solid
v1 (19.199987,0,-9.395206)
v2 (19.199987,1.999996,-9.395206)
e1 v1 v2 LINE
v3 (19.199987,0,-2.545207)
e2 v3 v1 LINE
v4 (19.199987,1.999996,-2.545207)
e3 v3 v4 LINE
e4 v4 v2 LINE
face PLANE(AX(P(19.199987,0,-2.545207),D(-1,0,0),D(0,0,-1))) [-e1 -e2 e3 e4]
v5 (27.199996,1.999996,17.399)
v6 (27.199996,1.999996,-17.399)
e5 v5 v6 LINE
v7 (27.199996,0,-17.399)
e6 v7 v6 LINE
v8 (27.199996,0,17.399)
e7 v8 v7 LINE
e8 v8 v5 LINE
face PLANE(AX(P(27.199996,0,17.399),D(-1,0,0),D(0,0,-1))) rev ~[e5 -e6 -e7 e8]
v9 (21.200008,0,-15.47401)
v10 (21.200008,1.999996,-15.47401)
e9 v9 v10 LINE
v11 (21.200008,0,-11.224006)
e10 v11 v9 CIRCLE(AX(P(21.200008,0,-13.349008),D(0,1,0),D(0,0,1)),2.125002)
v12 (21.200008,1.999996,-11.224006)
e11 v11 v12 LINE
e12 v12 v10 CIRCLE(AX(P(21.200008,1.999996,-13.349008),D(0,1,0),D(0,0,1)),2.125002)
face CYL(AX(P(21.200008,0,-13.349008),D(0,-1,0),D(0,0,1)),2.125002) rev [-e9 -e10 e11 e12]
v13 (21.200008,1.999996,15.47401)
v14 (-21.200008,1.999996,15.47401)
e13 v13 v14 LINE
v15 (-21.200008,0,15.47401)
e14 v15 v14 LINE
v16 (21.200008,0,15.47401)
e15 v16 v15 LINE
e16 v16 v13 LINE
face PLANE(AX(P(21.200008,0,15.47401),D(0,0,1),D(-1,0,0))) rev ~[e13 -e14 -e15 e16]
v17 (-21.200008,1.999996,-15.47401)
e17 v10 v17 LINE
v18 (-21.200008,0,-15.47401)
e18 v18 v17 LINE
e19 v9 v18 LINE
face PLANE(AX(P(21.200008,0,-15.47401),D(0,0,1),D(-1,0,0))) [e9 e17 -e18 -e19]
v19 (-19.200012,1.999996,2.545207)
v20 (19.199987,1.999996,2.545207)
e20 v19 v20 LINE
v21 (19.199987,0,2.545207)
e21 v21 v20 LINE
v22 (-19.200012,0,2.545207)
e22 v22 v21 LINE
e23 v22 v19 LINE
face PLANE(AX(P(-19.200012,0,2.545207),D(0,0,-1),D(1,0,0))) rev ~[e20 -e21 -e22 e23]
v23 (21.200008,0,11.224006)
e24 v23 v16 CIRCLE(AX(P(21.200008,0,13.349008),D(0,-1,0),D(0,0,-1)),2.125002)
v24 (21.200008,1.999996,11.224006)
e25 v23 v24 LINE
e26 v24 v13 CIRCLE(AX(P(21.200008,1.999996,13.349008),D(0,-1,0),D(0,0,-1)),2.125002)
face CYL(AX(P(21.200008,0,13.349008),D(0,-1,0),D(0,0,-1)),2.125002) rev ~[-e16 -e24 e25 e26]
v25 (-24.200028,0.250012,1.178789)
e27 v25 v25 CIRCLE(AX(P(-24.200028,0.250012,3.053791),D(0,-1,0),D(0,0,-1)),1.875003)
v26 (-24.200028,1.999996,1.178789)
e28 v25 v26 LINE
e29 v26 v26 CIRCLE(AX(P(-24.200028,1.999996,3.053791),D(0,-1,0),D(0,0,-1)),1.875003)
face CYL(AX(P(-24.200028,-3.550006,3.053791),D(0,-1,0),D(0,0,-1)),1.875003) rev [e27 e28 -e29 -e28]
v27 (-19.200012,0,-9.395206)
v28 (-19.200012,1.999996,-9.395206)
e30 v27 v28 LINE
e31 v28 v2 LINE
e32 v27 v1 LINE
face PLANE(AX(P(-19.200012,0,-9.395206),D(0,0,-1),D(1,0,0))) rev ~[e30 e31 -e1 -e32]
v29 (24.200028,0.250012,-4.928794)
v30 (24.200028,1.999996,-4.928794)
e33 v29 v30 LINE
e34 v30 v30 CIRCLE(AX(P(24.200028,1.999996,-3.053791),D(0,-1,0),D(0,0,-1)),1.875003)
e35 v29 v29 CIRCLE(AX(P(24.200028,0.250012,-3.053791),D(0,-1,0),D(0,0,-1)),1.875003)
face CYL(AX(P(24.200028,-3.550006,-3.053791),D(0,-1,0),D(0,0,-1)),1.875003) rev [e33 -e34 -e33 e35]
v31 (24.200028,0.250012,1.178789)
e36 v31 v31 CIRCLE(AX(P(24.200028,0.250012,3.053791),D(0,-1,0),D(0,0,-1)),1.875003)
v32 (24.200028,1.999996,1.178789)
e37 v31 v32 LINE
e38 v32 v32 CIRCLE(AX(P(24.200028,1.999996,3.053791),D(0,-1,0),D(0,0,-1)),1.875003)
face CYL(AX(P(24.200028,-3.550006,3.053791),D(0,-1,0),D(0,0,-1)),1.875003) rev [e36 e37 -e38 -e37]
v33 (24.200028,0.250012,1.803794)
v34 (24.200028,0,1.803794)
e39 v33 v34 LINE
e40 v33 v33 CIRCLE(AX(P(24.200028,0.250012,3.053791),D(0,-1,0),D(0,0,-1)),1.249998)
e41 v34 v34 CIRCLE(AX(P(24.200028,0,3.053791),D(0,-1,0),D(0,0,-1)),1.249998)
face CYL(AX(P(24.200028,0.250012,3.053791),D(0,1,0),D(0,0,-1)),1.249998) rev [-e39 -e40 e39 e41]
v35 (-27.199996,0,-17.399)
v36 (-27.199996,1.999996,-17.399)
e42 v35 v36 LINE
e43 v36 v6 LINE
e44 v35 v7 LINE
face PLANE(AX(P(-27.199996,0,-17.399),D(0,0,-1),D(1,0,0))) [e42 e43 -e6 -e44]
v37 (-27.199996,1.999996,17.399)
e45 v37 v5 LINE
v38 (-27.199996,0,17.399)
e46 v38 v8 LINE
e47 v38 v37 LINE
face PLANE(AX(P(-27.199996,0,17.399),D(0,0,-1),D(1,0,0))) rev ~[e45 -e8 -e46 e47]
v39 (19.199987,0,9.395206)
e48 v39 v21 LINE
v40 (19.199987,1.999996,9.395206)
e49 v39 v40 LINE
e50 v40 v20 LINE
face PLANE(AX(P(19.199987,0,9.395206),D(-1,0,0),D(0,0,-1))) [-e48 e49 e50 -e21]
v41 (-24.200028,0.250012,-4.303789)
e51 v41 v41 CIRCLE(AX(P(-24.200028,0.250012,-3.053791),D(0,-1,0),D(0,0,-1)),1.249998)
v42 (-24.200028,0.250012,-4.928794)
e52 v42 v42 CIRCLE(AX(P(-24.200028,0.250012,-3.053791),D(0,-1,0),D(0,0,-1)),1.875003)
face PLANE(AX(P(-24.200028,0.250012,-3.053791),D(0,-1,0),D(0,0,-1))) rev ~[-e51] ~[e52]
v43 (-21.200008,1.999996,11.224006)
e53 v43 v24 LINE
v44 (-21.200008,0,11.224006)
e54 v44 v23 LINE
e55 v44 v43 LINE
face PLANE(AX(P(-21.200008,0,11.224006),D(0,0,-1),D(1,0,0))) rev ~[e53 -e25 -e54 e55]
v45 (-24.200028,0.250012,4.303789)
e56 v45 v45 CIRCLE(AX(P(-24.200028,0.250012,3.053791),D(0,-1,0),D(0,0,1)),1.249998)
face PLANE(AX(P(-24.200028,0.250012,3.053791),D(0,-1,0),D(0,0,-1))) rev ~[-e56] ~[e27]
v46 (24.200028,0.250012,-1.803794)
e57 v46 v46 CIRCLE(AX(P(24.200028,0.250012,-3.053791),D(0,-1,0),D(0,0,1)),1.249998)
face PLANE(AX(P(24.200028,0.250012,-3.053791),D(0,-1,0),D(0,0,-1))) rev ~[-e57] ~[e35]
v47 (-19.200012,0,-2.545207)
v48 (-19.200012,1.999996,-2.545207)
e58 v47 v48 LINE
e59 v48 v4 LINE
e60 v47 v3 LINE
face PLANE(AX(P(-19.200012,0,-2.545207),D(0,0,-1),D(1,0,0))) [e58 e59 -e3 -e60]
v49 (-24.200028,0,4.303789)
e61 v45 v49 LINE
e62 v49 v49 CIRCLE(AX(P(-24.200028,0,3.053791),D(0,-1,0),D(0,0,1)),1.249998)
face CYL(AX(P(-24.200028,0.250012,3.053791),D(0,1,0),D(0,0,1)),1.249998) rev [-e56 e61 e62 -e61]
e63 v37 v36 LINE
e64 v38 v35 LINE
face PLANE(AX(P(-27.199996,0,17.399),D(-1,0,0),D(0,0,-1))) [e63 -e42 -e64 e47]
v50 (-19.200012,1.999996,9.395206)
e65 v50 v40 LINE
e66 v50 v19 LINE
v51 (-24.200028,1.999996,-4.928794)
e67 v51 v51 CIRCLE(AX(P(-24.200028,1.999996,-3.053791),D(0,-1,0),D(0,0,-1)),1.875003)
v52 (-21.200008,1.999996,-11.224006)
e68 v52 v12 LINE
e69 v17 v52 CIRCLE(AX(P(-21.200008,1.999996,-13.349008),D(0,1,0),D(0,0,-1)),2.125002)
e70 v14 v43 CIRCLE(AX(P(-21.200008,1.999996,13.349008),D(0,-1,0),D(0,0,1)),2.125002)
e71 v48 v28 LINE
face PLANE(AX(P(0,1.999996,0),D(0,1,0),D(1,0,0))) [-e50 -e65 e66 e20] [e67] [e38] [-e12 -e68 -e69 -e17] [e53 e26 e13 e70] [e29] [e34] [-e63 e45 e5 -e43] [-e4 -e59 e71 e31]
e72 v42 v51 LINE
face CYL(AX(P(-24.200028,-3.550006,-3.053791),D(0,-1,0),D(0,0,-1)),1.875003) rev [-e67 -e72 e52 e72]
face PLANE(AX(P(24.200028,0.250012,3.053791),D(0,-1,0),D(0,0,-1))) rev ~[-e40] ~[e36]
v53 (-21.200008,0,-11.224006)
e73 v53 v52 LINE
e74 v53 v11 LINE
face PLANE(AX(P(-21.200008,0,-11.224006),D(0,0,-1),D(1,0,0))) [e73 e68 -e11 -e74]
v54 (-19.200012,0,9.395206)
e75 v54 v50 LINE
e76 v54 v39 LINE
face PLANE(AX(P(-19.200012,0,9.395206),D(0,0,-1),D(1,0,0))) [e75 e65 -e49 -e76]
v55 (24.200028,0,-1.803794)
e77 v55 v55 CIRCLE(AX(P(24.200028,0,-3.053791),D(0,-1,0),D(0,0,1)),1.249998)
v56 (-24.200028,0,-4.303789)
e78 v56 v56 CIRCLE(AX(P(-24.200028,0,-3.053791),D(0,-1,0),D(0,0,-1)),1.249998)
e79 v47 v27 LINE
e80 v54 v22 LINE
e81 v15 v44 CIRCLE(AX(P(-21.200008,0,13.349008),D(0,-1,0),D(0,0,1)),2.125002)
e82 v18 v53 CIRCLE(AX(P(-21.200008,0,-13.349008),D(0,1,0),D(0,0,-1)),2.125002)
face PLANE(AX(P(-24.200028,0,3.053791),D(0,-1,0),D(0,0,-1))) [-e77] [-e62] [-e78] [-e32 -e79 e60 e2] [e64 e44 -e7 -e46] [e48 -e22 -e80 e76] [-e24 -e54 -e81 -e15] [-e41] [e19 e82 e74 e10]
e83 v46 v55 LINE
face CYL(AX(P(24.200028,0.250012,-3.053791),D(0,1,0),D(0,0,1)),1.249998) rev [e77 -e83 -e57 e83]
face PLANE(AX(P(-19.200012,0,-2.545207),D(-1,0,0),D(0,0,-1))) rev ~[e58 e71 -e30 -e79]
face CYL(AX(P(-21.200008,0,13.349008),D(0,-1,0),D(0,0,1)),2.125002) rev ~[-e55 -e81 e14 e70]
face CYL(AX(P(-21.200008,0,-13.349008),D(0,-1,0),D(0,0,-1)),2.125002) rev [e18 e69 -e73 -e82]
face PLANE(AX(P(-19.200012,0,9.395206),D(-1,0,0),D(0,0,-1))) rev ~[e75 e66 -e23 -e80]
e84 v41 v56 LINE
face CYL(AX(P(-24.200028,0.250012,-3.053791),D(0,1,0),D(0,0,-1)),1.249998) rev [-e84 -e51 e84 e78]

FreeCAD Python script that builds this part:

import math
import FreeCAD as App
import Part
import Sketcher

doc = App.newDocument("Part")
body = doc.addObject("PartDesign::Body", "Body")

# Sketch on XZ plane
sketch1 = body.newObject("Sketcher::SketchObject", "Sketch")
sketch1.AttachmentSupport = (doc.getObject("XZ_Plane"), [""])
sketch1.MapMode = "FlatFace"
sketch1.addGeometry([
    Part.LineSegment(App.Vector(-27.2, -17.4, 0), App.Vector(-27.2, 17.4, 0)),  # 0
    Part.LineSegment(App.Vector(-27.2, 17.4, 0), App.Vector(27.2, 17.4, 0)),  # 1
    Part.LineSegment(App.Vector(27.2, 17.4, 0), App.Vector(27.2, -17.4, 0)),  # 2
    Part.LineSegment(App.Vector(27.2, -17.4, 0), App.Vector(-27.2, -17.4, 0)),  # 3
    Part.LineSegment(App.Vector(19.2, 9.4, 0), App.Vector(-19.2, 9.4, 0)),  # 4
    Part.LineSegment(App.Vector(-19.2, 9.4, 0), App.Vector(-19.2, 2.5, 0)),  # 5
    Part.LineSegment(App.Vector(-19.2, 2.5, 0), App.Vector(19.2, 2.5, 0)),  # 6
    Part.LineSegment(App.Vector(19.2, 2.5, 0), App.Vector(19.2, 9.4, 0)),  # 7
    Part.ArcOfCircle(Part.Circle(App.Vector(-21.2, 13.3, 0), App.Vector(0, 0, 1), 2.1), math.radians(90), math.radians(270)),  # 8
    Part.LineSegment(App.Vector(-21.2, 11.2, 0), App.Vector(21.2, 11.2, 0)),  # 9
    Part.ArcOfCircle(Part.Circle(App.Vector(21.2, 13.3, 0), App.Vector(0, 0, 1), 2.1), math.radians(-90), math.radians(90)),  # 10
    Part.LineSegment(App.Vector(21.2, 15.5, 0), App.Vector(-21.2, 15.5, 0)),  # 11
    Part.LineSegment(App.Vector(19.2, -2.5, 0), App.Vector(-19.2, -2.5, 0)),  # 12
    Part.LineSegment(App.Vector(-19.2, -2.5, 0), App.Vector(-19.2, -9.4, 0)),  # 13
    Part.LineSegment(App.Vector(-19.2, -9.4, 0), App.Vector(19.2, -9.4, 0)),  # 14
    Part.LineSegment(App.Vector(19.2, -9.4, 0), App.Vector(19.2, -2.5, 0)),  # 15
    Part.LineSegment(App.Vector(21.2, -11.2, 0), App.Vector(-21.2, -11.2, 0)),  # 16
    Part.ArcOfCircle(Part.Circle(App.Vector(-21.2, -13.3, 0), App.Vector(0, 0, 1), 2.1), math.radians(90), math.radians(270)),  # 17
    Part.LineSegment(App.Vector(-21.2, -15.5, 0), App.Vector(21.2, -15.5, 0)),  # 18
    Part.ArcOfCircle(Part.Circle(App.Vector(21.2, -13.3, 0), App.Vector(0, 0, 1), 2.1), math.radians(-90), math.radians(90)),  # 19
], False)
sketch1.addConstraint([
    Sketcher.Constraint("Coincident", 0, 2, 1, 1),
    Sketcher.Constraint("Coincident", 1, 2, 2, 1),
    Sketcher.Constraint("Coincident", 2, 2, 3, 1),
    Sketcher.Constraint("Coincident", 3, 2, 0, 1),
    Sketcher.Constraint("Coincident", 4, 2, 5, 1),
    Sketcher.Constraint("Coincident", 5, 2, 6, 1),
    Sketcher.Constraint("Coincident", 6, 2, 7, 1),
    Sketcher.Constraint("Coincident", 7, 2, 4, 1),
    Sketcher.Constraint("Tangent", 8, 2, 9, 1),
    Sketcher.Constraint("Tangent", 9, 2, 10, 1),
    Sketcher.Constraint("Tangent", 10, 2, 11, 1),
    Sketcher.Constraint("Tangent", 11, 2, 8, 1),
    Sketcher.Constraint("Coincident", 12, 2, 13, 1),
    Sketcher.Constraint("Coincident", 13, 2, 14, 1),
    Sketcher.Constraint("Coincident", 14, 2, 15, 1),
    Sketcher.Constraint("Coincident", 15, 2, 12, 1),
    Sketcher.Constraint("Tangent", 16, 2, 17, 1),
    Sketcher.Constraint("Tangent", 17, 2, 18, 1),
    Sketcher.Constraint("Tangent", 18, 2, 19, 1),
    Sketcher.Constraint("Tangent", 19, 2, 16, 1),
    Sketcher.Constraint("Vertical", 0),
    Sketcher.Constraint("Horizontal", 1),
    Sketcher.Constraint("Vertical", 2),
    Sketcher.Constraint("Horizontal", 3),
    Sketcher.Constraint("Horizontal", 4),
    Sketcher.Constraint("Vertical", 5),
    Sketcher.Constraint("Horizontal", 6),
    Sketcher.Constraint("Vertical", 7),
    Sketcher.Constraint("Horizontal", 9),
    Sketcher.Constraint("Horizontal", 11),
    Sketcher.Constraint("Horizontal", 12),
    Sketcher.Constraint("Vertical", 13),
    Sketcher.Constraint("Horizontal", 14),
    Sketcher.Constraint("Vertical", 15),
    Sketcher.Constraint("Horizontal", 16),
    Sketcher.Constraint("Horizontal", 18),
    Sketcher.Constraint("Equal", 10, 17),
    Sketcher.Constraint("Symmetric", 10, 3, 17, 3, -1, 1),
    Sketcher.Constraint("Symmetric", 0, 2, 2, 2, -1, 1),
    Sketcher.Constraint("Symmetric", 5, 2, 12, 2, -1),
    Sketcher.Constraint("Symmetric", 7, 2, 14, 2, -1),
    Sketcher.Constraint("Vertical", 8, 3, 17, 3),
    Sketcher.Constraint("Vertical", 10, 3, 19, 3),
    Sketcher.Constraint("DistanceX", 4, 2, 4, 1, 38.399999),
    Sketcher.Constraint("DistanceY", 5, 2, 5, 1, 6.849999),
    Sketcher.Constraint("DistanceY", 0, 1, 0, 2, 34.798),
    Sketcher.Constraint("Radius", 8, 2.125002),
    Sketcher.Constraint("DistanceY", 5, 2, 8, 3, 10.803801),
    Sketcher.Constraint("DistanceX", 1, 1, 1, 2, 54.399993),
    Sketcher.Constraint("DistanceX", 9, 1, 9, 2, 42.400017),
    Sketcher.Constraint("DistanceY", -1, 1, 8, 3, 13.349008),
    Sketcher.Constraint("DistanceX", 4, 2, 10, 3, 40.400021),
])
pad1 = body.newObject("PartDesign::Pad", "Pad")
pad1.Profile = sketch1
pad1.Length = 1.999996
pad1.Reversed = True

# Sketch on XZ plane
sketch2 = body.newObject("Sketcher::SketchObject", "Sketch001")
sketch2.AttachmentSupport = (doc.getObject("XZ_Plane"), [""])
sketch2.MapMode = "FlatFace"
sketch2.AttachmentOffset = App.Placement(App.Vector(0, 0, -1.999996), App.Rotation())
sketch2.addGeometry([
    Part.Circle(App.Vector(-24.2, 3.1, 0), App.Vector(0, 0, 1), 1.9),
    Part.Circle(App.Vector(-24.2, -3.1, 0), App.Vector(0, 0, 1), 1.9),
    Part.Circle(App.Vector(24.2, -3.1, 0), App.Vector(0, 0, 1), 1.9),
    Part.Circle(App.Vector(24.2, 3.1, 0), App.Vector(0, 0, 1), 1.9),
], False)
sketch2.addConstraint([
    Sketcher.Constraint("Equal", 0, 1),
    Sketcher.Constraint("Equal", 1, 2),
    Sketcher.Constraint("Equal", 2, 3),
    Sketcher.Constraint("Symmetric", 0, 3, 2, 3, -1, 1),
    Sketcher.Constraint("Symmetric", 1, 3, 3, 3, -1, 1),
    Sketcher.Constraint("Symmetric", 1, 3, 2, 3, -2),
    Sketcher.Constraint("Diameter", 0, 3.750005),
    Sketcher.Constraint("DistanceY", -1, 1, 0, 3, 3.053791),
    Sketcher.Constraint("DistanceX", 0, 3, -1, 1, 24.200028),
])
pocket1 = body.newObject("PartDesign::Pocket", "Pocket")
pocket1.Profile = sketch2
pocket1.Type = "ThroughAll"
pocket1.Midplane = True

# Sketch on XZ plane
sketch3 = body.newObject("Sketcher::SketchObject", "Sketch002")
sketch3.AttachmentSupport = (doc.getObject("XZ_Plane"), [""])
sketch3.MapMode = "FlatFace"
sketch3.AttachmentOffset = App.Placement(App.Vector(0, 0, -0.250012), App.Rotation())
sketch3.addGeometry([
    Part.Circle(App.Vector(-24.2, 3.1, 0), App.Vector(0, 0, 1), 1.9),  # 0
    Part.Circle(App.Vector(-24.2, 3.1, 0), App.Vector(0, 0, 1), 1.2),  # 1
    Part.Circle(App.Vector(-24.2, -3.1, 0), App.Vector(0, 0, 1), 1.9),  # 2
    Part.Circle(App.Vector(-24.2, -3.1, 0), App.Vector(0, 0, 1), 1.2),  # 3
    Part.Circle(App.Vector(24.2, -3.1, 0), App.Vector(0, 0, 1), 1.9),  # 4
    Part.Circle(App.Vector(24.2, -3.1, 0), App.Vector(0, 0, 1), 1.2),  # 5
    Part.Circle(App.Vector(24.2, 3.1, 0), App.Vector(0, 0, 1), 1.9),  # 6
    Part.Circle(App.Vector(24.2, 3.1, 0), App.Vector(0, 0, 1), 1.2),  # 7
], False)
sketch3.addConstraint([
    Sketcher.Constraint("Coincident", 1, 3, 0, 3),
    Sketcher.Constraint("Coincident", 3, 3, 2, 3),
    Sketcher.Constraint("Coincident", 5, 3, 4, 3),
    Sketcher.Constraint("Coincident", 7, 3, 6, 3),
    Sketcher.Constraint("Equal", 0, 2),
    Sketcher.Constraint("Equal", 1, 3),
    Sketcher.Constraint("Equal", 2, 4),
    Sketcher.Constraint("Equal", 3, 5),
    Sketcher.Constraint("Equal", 4, 6),
    Sketcher.Constraint("Equal", 5, 7),
    Sketcher.Constraint("Symmetric", 0, 3, 4, 3, -1, 1),
    Sketcher.Constraint("Symmetric", 2, 3, 6, 3, -1, 1),
    Sketcher.Constraint("Symmetric", 2, 3, 4, 3, -2),
    Sketcher.Constraint("Diameter", 0, 3.750005),
    Sketcher.Constraint("Diameter", 1, 2.499995),
    Sketcher.Constraint("DistanceY", -1, 1, 0, 3, 3.053791),
    Sketcher.Constraint("DistanceX", 0, 3, -1, 1, 24.200028),
])
pad2 = body.newObject("PartDesign::Pad", "Pad001")
pad2.Profile = sketch3
pad2.Length = 0.250012

doc.recompute()
